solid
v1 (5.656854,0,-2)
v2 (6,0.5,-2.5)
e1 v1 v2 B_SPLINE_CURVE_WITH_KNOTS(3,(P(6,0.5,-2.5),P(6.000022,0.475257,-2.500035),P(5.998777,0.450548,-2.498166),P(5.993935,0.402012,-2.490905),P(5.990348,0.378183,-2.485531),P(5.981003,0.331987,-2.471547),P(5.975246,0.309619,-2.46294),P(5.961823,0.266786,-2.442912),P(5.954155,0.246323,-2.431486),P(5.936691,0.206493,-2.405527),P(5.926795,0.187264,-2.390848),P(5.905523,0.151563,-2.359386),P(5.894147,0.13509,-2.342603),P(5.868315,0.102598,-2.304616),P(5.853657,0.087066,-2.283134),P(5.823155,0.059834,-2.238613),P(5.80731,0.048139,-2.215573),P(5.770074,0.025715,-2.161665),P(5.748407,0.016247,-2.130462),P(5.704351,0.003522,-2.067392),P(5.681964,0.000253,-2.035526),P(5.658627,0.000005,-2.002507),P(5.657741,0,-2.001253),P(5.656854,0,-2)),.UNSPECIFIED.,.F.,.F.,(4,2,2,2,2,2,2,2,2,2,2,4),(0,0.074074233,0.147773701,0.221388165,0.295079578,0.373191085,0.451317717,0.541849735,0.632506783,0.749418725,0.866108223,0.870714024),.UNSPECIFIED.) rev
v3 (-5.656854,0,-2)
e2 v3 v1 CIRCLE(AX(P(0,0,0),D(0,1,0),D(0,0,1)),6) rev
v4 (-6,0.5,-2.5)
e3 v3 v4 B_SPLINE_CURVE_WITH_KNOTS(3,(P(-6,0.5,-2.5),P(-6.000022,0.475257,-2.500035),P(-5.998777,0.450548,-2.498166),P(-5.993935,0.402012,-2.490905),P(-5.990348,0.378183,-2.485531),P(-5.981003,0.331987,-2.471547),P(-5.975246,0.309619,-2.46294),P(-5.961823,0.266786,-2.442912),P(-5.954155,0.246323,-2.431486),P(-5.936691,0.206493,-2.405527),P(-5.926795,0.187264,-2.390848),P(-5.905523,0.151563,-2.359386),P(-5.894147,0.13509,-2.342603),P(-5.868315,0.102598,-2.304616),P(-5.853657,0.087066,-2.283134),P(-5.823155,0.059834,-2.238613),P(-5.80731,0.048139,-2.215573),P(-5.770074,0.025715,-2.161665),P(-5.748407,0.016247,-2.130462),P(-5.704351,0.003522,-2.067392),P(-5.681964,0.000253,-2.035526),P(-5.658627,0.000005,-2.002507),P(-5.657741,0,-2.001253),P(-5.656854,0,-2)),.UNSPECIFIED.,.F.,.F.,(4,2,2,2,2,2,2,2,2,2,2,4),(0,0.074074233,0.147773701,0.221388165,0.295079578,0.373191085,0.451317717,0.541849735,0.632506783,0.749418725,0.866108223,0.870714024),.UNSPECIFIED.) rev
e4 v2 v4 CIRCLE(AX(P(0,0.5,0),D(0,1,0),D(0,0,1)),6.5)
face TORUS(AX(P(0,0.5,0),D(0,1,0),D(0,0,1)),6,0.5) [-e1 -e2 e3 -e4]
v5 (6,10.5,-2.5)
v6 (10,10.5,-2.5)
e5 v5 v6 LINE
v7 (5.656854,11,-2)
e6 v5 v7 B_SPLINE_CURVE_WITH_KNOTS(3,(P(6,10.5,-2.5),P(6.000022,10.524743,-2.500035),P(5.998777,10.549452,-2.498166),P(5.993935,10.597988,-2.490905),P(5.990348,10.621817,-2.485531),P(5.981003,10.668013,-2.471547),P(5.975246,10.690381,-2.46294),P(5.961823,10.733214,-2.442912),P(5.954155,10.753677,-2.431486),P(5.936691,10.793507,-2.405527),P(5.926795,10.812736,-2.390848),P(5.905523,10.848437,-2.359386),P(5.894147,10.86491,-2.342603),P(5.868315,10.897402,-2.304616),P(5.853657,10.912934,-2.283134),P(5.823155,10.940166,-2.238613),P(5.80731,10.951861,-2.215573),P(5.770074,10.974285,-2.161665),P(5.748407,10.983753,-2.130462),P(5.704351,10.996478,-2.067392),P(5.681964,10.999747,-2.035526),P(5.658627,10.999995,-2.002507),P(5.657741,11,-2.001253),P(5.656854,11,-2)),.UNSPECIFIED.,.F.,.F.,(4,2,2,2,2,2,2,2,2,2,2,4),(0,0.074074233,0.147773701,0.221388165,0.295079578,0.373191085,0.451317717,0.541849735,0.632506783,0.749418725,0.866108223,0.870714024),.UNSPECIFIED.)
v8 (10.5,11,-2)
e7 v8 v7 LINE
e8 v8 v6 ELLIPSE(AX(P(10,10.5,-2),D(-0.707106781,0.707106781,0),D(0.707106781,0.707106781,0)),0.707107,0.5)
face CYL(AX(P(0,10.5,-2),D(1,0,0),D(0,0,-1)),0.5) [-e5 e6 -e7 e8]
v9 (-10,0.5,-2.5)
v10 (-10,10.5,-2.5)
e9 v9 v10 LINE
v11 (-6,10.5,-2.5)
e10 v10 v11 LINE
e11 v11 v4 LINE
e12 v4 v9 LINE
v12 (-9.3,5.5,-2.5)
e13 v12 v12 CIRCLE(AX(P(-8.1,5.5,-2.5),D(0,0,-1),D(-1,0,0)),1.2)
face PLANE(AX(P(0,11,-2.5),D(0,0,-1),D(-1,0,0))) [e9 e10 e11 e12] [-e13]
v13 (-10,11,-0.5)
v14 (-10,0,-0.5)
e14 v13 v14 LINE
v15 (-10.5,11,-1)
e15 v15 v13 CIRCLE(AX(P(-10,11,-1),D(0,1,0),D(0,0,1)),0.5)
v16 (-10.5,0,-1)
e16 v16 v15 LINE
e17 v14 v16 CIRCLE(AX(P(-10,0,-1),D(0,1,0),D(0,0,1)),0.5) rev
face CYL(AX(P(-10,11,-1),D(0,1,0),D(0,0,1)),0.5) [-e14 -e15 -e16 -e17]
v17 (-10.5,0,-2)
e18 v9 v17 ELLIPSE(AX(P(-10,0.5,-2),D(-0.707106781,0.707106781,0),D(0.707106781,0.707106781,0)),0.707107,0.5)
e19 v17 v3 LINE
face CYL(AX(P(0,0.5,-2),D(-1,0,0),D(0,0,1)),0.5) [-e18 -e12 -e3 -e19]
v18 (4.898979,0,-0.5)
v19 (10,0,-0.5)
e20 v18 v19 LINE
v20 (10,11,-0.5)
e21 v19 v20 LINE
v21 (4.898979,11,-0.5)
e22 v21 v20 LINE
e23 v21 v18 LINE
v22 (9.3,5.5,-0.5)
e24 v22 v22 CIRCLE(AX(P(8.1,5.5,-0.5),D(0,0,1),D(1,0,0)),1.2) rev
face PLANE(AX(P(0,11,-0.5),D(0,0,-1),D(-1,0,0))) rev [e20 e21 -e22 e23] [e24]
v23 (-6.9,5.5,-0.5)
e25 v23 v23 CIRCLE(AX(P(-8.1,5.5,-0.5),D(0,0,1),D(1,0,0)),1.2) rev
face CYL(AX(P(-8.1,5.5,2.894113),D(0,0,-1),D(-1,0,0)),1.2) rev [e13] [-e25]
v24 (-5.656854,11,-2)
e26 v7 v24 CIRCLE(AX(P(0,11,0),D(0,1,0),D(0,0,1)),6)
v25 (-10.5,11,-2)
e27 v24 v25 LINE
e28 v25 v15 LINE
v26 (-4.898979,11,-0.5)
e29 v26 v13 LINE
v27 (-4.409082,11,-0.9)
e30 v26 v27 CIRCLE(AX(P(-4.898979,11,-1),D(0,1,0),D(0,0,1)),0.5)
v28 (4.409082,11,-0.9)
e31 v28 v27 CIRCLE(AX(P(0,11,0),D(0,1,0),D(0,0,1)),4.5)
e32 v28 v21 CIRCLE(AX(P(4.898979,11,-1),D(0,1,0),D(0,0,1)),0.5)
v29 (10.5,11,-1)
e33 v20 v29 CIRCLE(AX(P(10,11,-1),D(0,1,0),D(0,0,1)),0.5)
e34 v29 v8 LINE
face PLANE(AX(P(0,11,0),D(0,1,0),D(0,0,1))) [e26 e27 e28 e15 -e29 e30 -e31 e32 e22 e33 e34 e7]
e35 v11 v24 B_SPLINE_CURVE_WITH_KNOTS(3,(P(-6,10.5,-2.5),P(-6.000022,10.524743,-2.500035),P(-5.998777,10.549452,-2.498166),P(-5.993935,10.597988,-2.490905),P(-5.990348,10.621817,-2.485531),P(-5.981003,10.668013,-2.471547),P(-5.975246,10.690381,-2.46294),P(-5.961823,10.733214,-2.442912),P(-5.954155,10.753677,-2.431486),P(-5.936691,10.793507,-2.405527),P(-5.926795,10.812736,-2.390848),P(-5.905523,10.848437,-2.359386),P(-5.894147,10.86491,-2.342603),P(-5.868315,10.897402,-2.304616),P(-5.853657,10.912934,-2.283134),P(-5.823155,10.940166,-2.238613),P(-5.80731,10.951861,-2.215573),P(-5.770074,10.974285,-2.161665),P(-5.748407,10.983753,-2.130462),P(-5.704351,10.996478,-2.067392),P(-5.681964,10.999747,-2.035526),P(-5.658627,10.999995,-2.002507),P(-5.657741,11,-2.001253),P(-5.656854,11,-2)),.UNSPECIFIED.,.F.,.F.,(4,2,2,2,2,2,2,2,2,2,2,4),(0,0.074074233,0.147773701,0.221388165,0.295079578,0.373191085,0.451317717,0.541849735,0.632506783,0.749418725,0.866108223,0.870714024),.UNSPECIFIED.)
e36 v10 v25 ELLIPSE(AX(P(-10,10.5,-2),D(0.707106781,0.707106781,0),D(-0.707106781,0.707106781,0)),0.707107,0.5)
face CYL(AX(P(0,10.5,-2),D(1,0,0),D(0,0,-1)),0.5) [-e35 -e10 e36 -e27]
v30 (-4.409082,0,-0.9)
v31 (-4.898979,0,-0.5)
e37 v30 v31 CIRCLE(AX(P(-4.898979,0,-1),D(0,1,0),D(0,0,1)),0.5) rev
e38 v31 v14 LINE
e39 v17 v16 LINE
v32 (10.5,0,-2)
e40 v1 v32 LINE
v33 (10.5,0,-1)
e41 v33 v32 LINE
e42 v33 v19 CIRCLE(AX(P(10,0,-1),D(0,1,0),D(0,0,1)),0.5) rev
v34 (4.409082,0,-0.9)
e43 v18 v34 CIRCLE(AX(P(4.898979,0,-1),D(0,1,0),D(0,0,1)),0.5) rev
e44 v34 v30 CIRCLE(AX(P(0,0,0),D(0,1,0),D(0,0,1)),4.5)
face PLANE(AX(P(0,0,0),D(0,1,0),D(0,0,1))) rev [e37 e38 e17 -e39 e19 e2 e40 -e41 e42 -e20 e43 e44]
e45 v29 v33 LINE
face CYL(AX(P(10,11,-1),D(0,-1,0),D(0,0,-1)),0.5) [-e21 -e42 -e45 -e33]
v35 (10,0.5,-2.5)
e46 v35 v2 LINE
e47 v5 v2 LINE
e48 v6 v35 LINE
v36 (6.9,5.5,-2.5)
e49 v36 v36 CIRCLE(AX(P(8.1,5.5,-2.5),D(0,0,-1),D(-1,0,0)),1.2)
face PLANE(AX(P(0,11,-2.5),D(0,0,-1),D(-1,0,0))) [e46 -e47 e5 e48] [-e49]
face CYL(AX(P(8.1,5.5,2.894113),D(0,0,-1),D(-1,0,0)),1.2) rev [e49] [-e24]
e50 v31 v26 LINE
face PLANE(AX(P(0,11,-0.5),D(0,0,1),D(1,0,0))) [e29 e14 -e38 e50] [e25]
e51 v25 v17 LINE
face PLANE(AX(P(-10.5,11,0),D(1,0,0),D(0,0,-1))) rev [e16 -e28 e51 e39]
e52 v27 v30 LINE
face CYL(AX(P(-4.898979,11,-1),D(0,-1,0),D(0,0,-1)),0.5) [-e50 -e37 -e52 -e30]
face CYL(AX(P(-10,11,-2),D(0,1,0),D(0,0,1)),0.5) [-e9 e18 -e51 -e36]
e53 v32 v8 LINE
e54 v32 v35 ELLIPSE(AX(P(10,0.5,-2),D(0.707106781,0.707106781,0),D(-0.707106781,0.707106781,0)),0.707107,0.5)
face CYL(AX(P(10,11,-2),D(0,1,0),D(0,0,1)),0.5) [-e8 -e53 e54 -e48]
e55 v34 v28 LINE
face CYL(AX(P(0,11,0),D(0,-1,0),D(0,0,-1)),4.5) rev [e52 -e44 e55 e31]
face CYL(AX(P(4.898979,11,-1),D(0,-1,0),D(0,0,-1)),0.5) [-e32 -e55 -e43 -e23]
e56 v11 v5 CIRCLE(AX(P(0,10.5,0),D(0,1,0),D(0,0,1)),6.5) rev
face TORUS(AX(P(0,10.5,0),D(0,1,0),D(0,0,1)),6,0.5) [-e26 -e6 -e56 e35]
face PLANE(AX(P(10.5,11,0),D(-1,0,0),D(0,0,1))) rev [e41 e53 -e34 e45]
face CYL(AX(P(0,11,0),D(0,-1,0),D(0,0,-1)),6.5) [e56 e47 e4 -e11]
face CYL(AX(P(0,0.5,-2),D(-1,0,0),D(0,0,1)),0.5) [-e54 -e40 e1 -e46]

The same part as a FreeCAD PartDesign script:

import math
import FreeCAD as App
import Part
import Sketcher
from FreeCAD import Vector
Q = App.Units.Quantity


def edges_at(feature, points):
    """Names of the edges that pass closest to the given points."""
    edges = feature.Shape.Edges
    near = lambda p: min(range(len(edges)), key=lambda i: edges[i].distToShape(Part.Vertex(*p))[0])
    return sorted({f"Edge{near(p) + 1}" for p in points})

doc = App.newDocument("Part")
body = doc.addObject("PartDesign::Body", "Body")

# Sketch on XZ plane
sketch1 = body.newObject("Sketcher::SketchObject", "Sketch")
sketch1.AttachmentSupport = (doc.getObject("XZ_Plane"), [""])
sketch1.MapMode = "FlatFace"
sketch1.addGeometry(Part.LineSegment(Vector(10.5, -2.5, 0), Vector(6, -2.5, 0)), False)
sketch1.addGeometry(Part.ArcOfCircle(Part.Circle(Vector(0, 0, 0), Vector(0, 0, 1), 6.5), math.radians(-157.380135), math.radians(-22.619865)), False)
sketch1.addGeometry(Part.LineSegment(Vector(-6, -2.5, 0), Vector(-10.5, -2.5, 0)), False)
sketch1.addGeometry(Part.LineSegment(Vector(-10.5, -2.5, 0), Vector(-10.5, -0.5, 0)), False)
sketch1.addGeometry(Part.LineSegment(Vector(-10.5, -0.5, 0), Vector(-4.472136, -0.5, 0)), False)
sketch1.addGeometry(Part.ArcOfCircle(Part.Circle(Vector(0, 0, 0), Vector(0, 0, 1), 4.5), math.radians(-173.62063), math.radians(-6.37937)), False)
sketch1.addGeometry(Part.LineSegment(Vector(4.472136, -0.5, 0), Vector(10.5, -0.5, 0)), False)
sketch1.addGeometry(Part.LineSegment(Vector(10.5, -0.5, 0), Vector(10.5, -2.5, 0)), False)
sketch1.addConstraint(Sketcher.Constraint("Coincident", 0, 2, 1, 2))
sketch1.addConstraint(Sketcher.Constraint("Coincident", 1, 1, 2, 1))
sketch1.addConstraint(Sketcher.Constraint("Coincident", 2, 2, 3, 1))
sketch1.addConstraint(Sketcher.Constraint("Coincident", 3, 2, 4, 1))
sketch1.addConstraint(Sketcher.Constraint("Coincident", 4, 2, 5, 1))
sketch1.addConstraint(Sketcher.Constraint("Coincident", 5, 2, 6, 1))
sketch1.addConstraint(Sketcher.Constraint("Coincident", 6, 2, 7, 1))
sketch1.addConstraint(Sketcher.Constraint("Coincident", 7, 2, 0, 1))
sketch1.addConstraint(Sketcher.Constraint("Horizontal", 0))
sketch1.addConstraint(Sketcher.Constraint("Horizontal", 2))
sketch1.addConstraint(Sketcher.Constraint("Vertical", 3))
sketch1.addConstraint(Sketcher.Constraint("Horizontal", 4))
sketch1.addConstraint(Sketcher.Constraint("Horizontal", 6))
sketch1.addConstraint(Sketcher.Constraint("Vertical", 7))
sketch1.addConstraint(Sketcher.Constraint("Coincident", 1, 3, -1, 1))
sketch1.addConstraint(Sketcher.Constraint("Coincident", 5, 3, -1, 1))
sketch1.addConstraint(Sketcher.Constraint("Symmetric", 3, 2, 6, 2, -2))
sketch1.addConstraint(Sketcher.Constraint("Horizontal", 0, 2, 1, 1))
sketch1.addConstraint(Sketcher.Constraint("Radius", 1, Q("6.5 mm")))
sketch1.addConstraint(Sketcher.Constraint("Radius", 5, Q("4.5 mm")))
sketch1.addConstraint(Sketcher.Constraint("DistanceY", 3, 1, 3, 2, Q("2 mm")))
sketch1.addConstraint(Sketcher.Constraint("DistanceX", 0, 2, 0, 1, Q("4.5 mm")))
sketch1.addConstraint(Sketcher.Constraint("DistanceX", -1, 1, 0, 2, Q("6 mm")))
pad1 = body.newObject("PartDesign::Pad", "Pad")
pad1.Profile = sketch1
pad1.Length = 11
pad1.Reversed = True

# Sketch on XY plane
sketch2 = body.newObject("Sketcher::SketchObject", "Sketch001")
sketch2.AttachmentSupport = (doc.getObject("XY_Plane"), [""])
sketch2.MapMode = "FlatFace"
sketch2.AttachmentOffset = App.Placement(Vector(0, 0, -2.5), App.Rotation())
sketch2.addGeometry(Part.Circle(Vector(8.1, 5.5, 0), Vector(0, 0, 1), 1.2), False)
sketch2.addGeometry(Part.Circle(Vector(-8.1, 5.5, 0), Vector(0, 0, 1), 1.2), False)
sketch2.addConstraint(Sketcher.Constraint("Equal", 0, 1))
sketch2.addConstraint(Sketcher.Constraint("Symmetric", 0, 3, 1, 3, -2))
sketch2.addConstraint(Sketcher.Constraint("Diameter", 0, Q("2.4 mm")))
sketch2.addConstraint(Sketcher.Constraint("DistanceX", -1, 1, 0, 3, Q("8.1 mm")))
sketch2.addConstraint(Sketcher.Constraint("DistanceY", -1, 1, 0, 3, Q("5.5 mm")))
pocket1 = body.newObject("PartDesign::Pocket", "Pocket")
pocket1.Profile = sketch2
pocket1.Length = 2
pocket1.Reversed = True
doc.recompute()

fillet = body.newObject("PartDesign::Fillet", "Fillet")
fillet.Base = (pocket1, edges_at(pocket1, [
    (0, 11, -6.5),
    (-8.25, 0, -2.5),
    (0, 0, -6.5),
    (8.25, 0, -2.5),
    (-8.25, 11, -2.5),
    (10.5, 5.5, -2.5),
    (10.5, 5.5, -0.5),
    (4.472, 5.5, -0.5),
    (-4.472, 5.5, -0.5),
    (-10.5, 5.5, -0.5),
    (-10.5, 5.5, -2.5),
    (8.25, 11, -2.5),
]))
fillet.Radius = 0.5

doc.recompute()
